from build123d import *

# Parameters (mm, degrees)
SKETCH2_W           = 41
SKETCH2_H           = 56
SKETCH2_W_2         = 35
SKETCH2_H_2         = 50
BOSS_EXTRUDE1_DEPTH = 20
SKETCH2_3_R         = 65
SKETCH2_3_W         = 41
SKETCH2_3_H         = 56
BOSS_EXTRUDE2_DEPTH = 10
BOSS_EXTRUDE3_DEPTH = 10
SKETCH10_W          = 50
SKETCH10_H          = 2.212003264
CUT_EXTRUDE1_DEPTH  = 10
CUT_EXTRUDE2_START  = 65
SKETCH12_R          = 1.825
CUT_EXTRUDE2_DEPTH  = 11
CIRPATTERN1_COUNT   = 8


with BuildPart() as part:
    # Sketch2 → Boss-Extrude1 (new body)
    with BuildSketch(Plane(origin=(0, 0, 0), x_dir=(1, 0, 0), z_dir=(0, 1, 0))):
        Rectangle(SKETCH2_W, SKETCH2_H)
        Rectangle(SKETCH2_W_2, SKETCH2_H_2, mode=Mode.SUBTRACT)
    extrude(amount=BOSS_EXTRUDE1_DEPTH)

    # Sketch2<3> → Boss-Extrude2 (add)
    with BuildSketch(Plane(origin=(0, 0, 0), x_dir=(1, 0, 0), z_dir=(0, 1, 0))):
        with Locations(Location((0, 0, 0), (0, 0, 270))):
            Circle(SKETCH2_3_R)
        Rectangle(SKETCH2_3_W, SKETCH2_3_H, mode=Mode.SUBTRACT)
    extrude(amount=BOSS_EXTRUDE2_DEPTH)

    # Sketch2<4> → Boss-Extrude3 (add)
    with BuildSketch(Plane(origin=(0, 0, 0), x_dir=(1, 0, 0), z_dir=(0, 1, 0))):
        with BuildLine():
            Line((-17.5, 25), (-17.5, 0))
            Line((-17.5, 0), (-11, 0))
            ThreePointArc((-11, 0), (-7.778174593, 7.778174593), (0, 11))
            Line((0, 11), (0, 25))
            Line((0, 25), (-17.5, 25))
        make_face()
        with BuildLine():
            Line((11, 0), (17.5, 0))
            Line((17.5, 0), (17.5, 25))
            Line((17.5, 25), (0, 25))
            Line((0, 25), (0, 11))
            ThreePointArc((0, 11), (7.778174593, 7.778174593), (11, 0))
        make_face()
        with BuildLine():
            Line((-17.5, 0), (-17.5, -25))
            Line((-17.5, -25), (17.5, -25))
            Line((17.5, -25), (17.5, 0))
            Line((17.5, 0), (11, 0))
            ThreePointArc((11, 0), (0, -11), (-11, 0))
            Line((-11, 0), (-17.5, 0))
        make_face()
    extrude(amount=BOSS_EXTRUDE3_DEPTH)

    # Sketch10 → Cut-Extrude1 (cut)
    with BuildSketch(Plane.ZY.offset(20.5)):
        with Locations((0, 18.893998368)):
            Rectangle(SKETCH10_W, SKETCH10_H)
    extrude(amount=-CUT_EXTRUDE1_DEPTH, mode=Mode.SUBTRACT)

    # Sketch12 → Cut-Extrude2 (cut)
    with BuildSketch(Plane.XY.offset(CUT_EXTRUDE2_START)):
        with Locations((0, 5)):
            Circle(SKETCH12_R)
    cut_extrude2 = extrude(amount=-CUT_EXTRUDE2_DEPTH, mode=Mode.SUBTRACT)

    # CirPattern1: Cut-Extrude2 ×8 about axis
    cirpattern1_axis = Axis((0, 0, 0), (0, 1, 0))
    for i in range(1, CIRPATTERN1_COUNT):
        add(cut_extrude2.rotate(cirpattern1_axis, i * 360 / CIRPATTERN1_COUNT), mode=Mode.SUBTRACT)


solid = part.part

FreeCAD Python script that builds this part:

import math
import FreeCAD as App
import Part
import Sketcher

V = App.Vector
Q = App.Units.Quantity

doc = App.newDocument("Part")
params = doc.addObject("Spreadsheet::Sheet", "Params")
for row, (alias, value) in enumerate([
    ("sketch1_width", "41 mm"),
    ("sketch1_width2", "35 mm"),
    ("sketch1_height", "56 mm"),
    ("sketch1_height2", "50 mm"),
    ("pad1_length", "20 mm"),
    ("sketch2_diameter", "130 mm"),
    ("sketch2_width", "41 mm"),
    ("sketch2_height", "56 mm"),
    ("pad2_length", "10 mm"),
    ("sketch3_radius", "11 mm"),
    ("sketch3_width", "35 mm"),
    ("sketch3_height", "50 mm"),
    ("pad3_length", "10 mm"),
    ("sketch4_height", "50 mm"),
    ("pocket1_length", "10 mm"),
    ("sketch5_diameter", "3.65 mm"),
    ("pocket2_length", "11 mm"),
], start=1):
    params.set(f"A{row}", alias)
    params.set(f"B{row}", "=" + value)
    params.setAlias(f"B{row}", alias)

body = doc.addObject("PartDesign::Body", "Body")

sketch1 = doc.addObject("Sketcher::SketchObject", "Sketch")
body.addObject(sketch1)
sketch1.AttachmentSupport = (doc.XZ_Plane, [""])
sketch1.MapMode = "FlatFace"
sketch1.addGeometry([
    Part.LineSegment(V(-20, -28, 0), V(-20, 28, 0)),
    Part.LineSegment(V(-20, 28, 0), V(20, 28, 0)),
    Part.LineSegment(V(20, 28, 0), V(20, -28, 0)),
    Part.LineSegment(V(20, -28, 0), V(-20, -28, 0)),
    Part.LineSegment(V(18, 25, 0), V(-18, 25, 0)),
    Part.LineSegment(V(-18, 25, 0), V(-18, -25, 0)),
    Part.LineSegment(V(-18, -25, 0), V(18, -25, 0)),
    Part.LineSegment(V(18, -25, 0), V(18, 25, 0)),
], False)
sketch1.addConstraint([
    Sketcher.Constraint("Coincident", 0, 2, 1, 1),
    Sketcher.Constraint("Coincident", 1, 2, 2, 1),
    Sketcher.Constraint("Coincident", 2, 2, 3, 1),
    Sketcher.Constraint("Coincident", 3, 2, 0, 1),
    Sketcher.Constraint("Coincident", 4, 2, 5, 1),
    Sketcher.Constraint("Coincident", 5, 2, 6, 1),
    Sketcher.Constraint("Coincident", 6, 2, 7, 1),
    Sketcher.Constraint("Coincident", 7, 2, 4, 1),
    Sketcher.Constraint("Vertical", 0),
    Sketcher.Constraint("Horizontal", 1),
    Sketcher.Constraint("Vertical", 2),
    Sketcher.Constraint("Horizontal", 3),
    Sketcher.Constraint("Horizontal", 4),
    Sketcher.Constraint("Vertical", 5),
    Sketcher.Constraint("Horizontal", 6),
    Sketcher.Constraint("Vertical", 7),
    Sketcher.Constraint("Symmetric", 0, 2, 2, 2, -1, 1),
    Sketcher.Constraint("Symmetric", 4, 2, 6, 2, -1, 1),
    Sketcher.Constraint("DistanceX", 1, 1, 1, 2, Q("41 mm")),
    Sketcher.Constraint("DistanceX", 4, 2, 4, 1, Q("35 mm")),
    Sketcher.Constraint("DistanceY", 0, 1, 0, 2, Q("56 mm")),
    Sketcher.Constraint("DistanceY", 5, 2, 5, 1, Q("50 mm")),
])
sketch1.setExpression("Constraints[18]", "Params.sketch1_width")
sketch1.setExpression("Constraints[19]", "Params.sketch1_width2")
sketch1.setExpression("Constraints[20]", "Params.sketch1_height")
sketch1.setExpression("Constraints[21]", "Params.sketch1_height2")
pad1 = doc.addObject("PartDesign::Pad", "Pad")
body.addObject(pad1)
pad1.Profile = sketch1
pad1.setExpression("Length", "Params.pad1_length")
pad1.Reversed = True

sketch2 = doc.addObject("Sketcher::SketchObject", "Sketch001")
body.addObject(sketch2)
sketch2.AttachmentSupport = (doc.XZ_Plane, [""])
sketch2.MapMode = "FlatFace"
sketch2.addGeometry([
    Part.Circle(V(0, 0, 0), V(0, 0, 1), 65),
    Part.LineSegment(V(20, 28, 0), V(-20, 28, 0)),
    Part.LineSegment(V(-20, 28, 0), V(-20, -28, 0)),
    Part.LineSegment(V(-20, -28, 0), V(20, -28, 0)),
    Part.LineSegment(V(20, -28, 0), V(20, 28, 0)),
], False)
sketch2.addConstraint([
    Sketcher.Constraint("Coincident", 1, 2, 2, 1),
    Sketcher.Constraint("Coincident", 2, 2, 3, 1),
    Sketcher.Constraint("Coincident", 3, 2, 4, 1),
    Sketcher.Constraint("Coincident", 4, 2, 1, 1),
    Sketcher.Constraint("Horizontal", 1),
    Sketcher.Constraint("Vertical", 2),
    Sketcher.Constraint("Horizontal", 3),
    Sketcher.Constraint("Vertical", 4),
    Sketcher.Constraint("Coincident", 0, 3, -1, 1),
    Sketcher.Constraint("Symmetric", 1, 2, 3, 2, -1, 1),
    Sketcher.Constraint("Diameter", 0, Q("130 mm")),
    Sketcher.Constraint("DistanceX", 1, 2, 1, 1, Q("41 mm")),
    Sketcher.Constraint("DistanceY", 2, 2, 2, 1, Q("56 mm")),
])
sketch2.setExpression("Constraints[10]", "Params.sketch2_diameter")
sketch2.setExpression("Constraints[11]", "Params.sketch2_width")
sketch2.setExpression("Constraints[12]", "Params.sketch2_height")
pad2 = doc.addObject("PartDesign::Pad", "Pad001")
body.addObject(pad2)
pad2.Profile = sketch2
pad2.setExpression("Length", "Params.pad2_length")
pad2.Reversed = True

sketch3 = doc.addObject("Sketcher::SketchObject", "Sketch002")
body.addObject(sketch3)
sketch3.AttachmentSupport = (doc.XZ_Plane, [""])
sketch3.MapMode = "FlatFace"
sketch3.addGeometry([
    Part.LineSegment(V(-18, -25, 0), V(-18, 25, 0)),
    Part.LineSegment(V(-18, 25, 0), V(18, 25, 0)),
    Part.LineSegment(V(18, 25, 0), V(18, -25, 0)),
    Part.LineSegment(V(18, -25, 0), V(-18, -25, 0)),
    Part.ArcOfCircle(Part.Circle(V(0, 0, 0), V(0, 0, 1), 11), math.radians(180), math.radians(270)),
    Part.ArcOfCircle(Part.Circle(V(0, 0, 0), V(0, 0, 1), 11), math.radians(-90), math.radians(0)),
    Part.ArcOfCircle(Part.Circle(V(0, 0, 0), V(0, 0, 1), 11), math.radians(0), math.radians(180)),
], False)
sketch3.addConstraint([
    Sketcher.Constraint("Coincident", 0, 2, 1, 1),
    Sketcher.Constraint("Coincident", 1, 2, 2, 1),
    Sketcher.Constraint("Coincident", 2, 2, 3, 1),
    Sketcher.Constraint("Coincident", 3, 2, 0, 1),
    Sketcher.Constraint("Tangent", 4, 2, 5, 1),
    Sketcher.Constraint("Tangent", 5, 2, 6, 1),
    Sketcher.Constraint("Tangent", 6, 2, 4, 1),
    Sketcher.Constraint("Vertical", 0),
    Sketcher.Constraint("Horizontal", 1),
    Sketcher.Constraint("Vertical", 2),
    Sketcher.Constraint("Horizontal", 3),
    Sketcher.Constraint("Coincident", 4, 3, -1, 1),
    Sketcher.Constraint("Symmetric", 0, 2, 2, 2, -1, 1),
    Sketcher.Constraint("PointOnObject", 4, 2, -2),
    Sketcher.Constraint("PointOnObject", 5, 2, -1),
    Sketcher.Constraint("PointOnObject", 6, 2, -1),
    Sketcher.Constraint("Radius", 4, Q("11 mm")),
    Sketcher.Constraint("DistanceX", 1, 1, 1, 2, Q("35 mm")),
    Sketcher.Constraint("DistanceY", 0, 1, 0, 2, Q("50 mm")),
])
sketch3.setExpression("Constraints[16]", "Params.sketch3_radius")
sketch3.setExpression("Constraints[17]", "Params.sketch3_width")
sketch3.setExpression("Constraints[18]", "Params.sketch3_height")
pad3 = doc.addObject("PartDesign::Pad", "Pad002")
body.addObject(pad3)
pad3.Profile = sketch3
pad3.setExpression("Length", "Params.pad3_length")
pad3.Reversed = True

sketch4 = doc.addObject("Sketcher::SketchObject", "Sketch003")
body.addObject(sketch4)
sketch4.AttachmentSupport = (doc.YZ_Plane, [""])
sketch4.MapMode = "FlatFace"
sketch4.AttachmentOffset = App.Placement(V(0, 0, -20.5), App.Rotation())
sketch4.addGeometry([
    Part.LineSegment(V(20, -25, 0), V(17.8, -25, 0)),
    Part.LineSegment(V(17.8, -25, 0), V(17.8, 25, 0)),
    Part.LineSegment(V(17.8, 25, 0), V(20, 25, 0)),
    Part.LineSegment(V(20, 25, 0), V(20, -25, 0)),
], False)
sketch4.addConstraint([
    Sketcher.Constraint("Coincident", 0, 2, 1, 1),
    Sketcher.Constraint("Coincident", 1, 2, 2, 1),
    Sketcher.Constraint("Coincident", 2, 2, 3, 1),
    Sketcher.Constraint("Coincident", 3, 2, 0, 1),
    Sketcher.Constraint("Horizontal", 0),
    Sketcher.Constraint("Vertical", 1),
    Sketcher.Constraint("Horizontal", 2),
    Sketcher.Constraint("Vertical", 3),
    Sketcher.Constraint("DistanceY", 1, 1, 1, 2, Q("50 mm")),
    Sketcher.Constraint("DistanceY", 0, 2, -1, 1, Q("25 mm")),
    Sketcher.Constraint("DistanceX", -1, 1, 2, 2, Q("20 mm")),
    Sketcher.Constraint("DistanceX", 0, 2, 0, 1, Q("2.212003 mm")),
])
sketch4.setExpression("Constraints[8]", "Params.sketch4_height")
pocket1 = doc.addObject("PartDesign::Pocket", "Pocket")
body.addObject(pocket1)
pocket1.Profile = sketch4
pocket1.setExpression("Length", "Params.pocket1_length")
pocket1.Reversed = True

sketch5 = doc.addObject("Sketcher::SketchObject", "Sketch004")
body.addObject(sketch5)
sketch5.AttachmentSupport = (doc.XY_Plane, [""])
sketch5.MapMode = "FlatFace"
sketch5.AttachmentOffset = App.Placement(V(0, 0, 65), App.Rotation())
sketch5.addGeometry(Part.Circle(V(0, 5, 0), V(0, 0, 1), 1.8), False)
sketch5.addConstraint([
    Sketcher.Constraint("PointOnObject", 0, 3, -2),
    Sketcher.Constraint("Diameter", 0, Q("3.65 mm")),
    Sketcher.Constraint("DistanceY", -1, 1, 0, 3, Q("5 mm")),
])
sketch5.setExpression("Constraints[1]", "Params.sketch5_diameter")
pocket2 = doc.addObject("PartDesign::Pocket", "Pocket001")
body.addObject(pocket2)
pocket2.Profile = sketch5
pocket2.setExpression("Length", "Params.pocket2_length")
doc.recompute()

polarpattern = doc.addObject("PartDesign::PolarPattern", "PolarPattern")
body.addObject(polarpattern)
polarpattern.Originals = [pocket2]
polarpattern.Axis = (doc.Y_Axis, [""])
polarpattern.Angle = 360
polarpattern.Occurrences = 8
body.Tip = polarpattern

doc.recompute()
